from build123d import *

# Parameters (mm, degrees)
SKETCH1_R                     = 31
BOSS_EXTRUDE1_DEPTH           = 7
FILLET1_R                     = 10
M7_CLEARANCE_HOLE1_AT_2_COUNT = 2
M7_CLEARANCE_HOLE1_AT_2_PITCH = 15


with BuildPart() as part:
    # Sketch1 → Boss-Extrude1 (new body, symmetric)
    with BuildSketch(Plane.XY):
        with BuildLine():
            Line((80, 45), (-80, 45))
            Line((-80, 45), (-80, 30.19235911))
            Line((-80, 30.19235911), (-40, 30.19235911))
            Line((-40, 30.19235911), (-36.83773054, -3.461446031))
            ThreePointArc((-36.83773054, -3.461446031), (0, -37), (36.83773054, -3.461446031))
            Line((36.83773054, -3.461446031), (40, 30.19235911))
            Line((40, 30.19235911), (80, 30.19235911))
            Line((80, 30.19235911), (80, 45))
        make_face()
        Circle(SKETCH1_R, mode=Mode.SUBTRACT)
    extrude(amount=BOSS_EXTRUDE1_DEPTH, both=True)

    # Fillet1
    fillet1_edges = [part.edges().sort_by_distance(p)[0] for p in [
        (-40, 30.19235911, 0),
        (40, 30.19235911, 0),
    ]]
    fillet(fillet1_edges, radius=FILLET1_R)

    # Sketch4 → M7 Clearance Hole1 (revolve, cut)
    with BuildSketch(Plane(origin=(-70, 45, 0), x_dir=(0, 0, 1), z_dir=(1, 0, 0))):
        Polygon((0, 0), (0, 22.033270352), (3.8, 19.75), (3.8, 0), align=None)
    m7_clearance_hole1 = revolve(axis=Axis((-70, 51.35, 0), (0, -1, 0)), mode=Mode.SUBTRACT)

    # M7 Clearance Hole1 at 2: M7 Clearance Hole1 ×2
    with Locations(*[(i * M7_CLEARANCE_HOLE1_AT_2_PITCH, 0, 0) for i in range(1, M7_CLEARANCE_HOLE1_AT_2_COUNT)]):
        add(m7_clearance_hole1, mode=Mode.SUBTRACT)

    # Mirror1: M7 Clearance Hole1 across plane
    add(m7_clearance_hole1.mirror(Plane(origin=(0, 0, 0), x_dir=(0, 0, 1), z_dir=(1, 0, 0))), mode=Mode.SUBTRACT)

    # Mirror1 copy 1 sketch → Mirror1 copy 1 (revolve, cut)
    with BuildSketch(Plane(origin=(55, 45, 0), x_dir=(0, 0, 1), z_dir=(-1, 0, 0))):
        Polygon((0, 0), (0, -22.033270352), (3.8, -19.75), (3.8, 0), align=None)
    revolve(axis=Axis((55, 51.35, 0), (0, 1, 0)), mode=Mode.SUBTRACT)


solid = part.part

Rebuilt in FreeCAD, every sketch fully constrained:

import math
import FreeCAD as App
import Part
import Sketcher
from FreeCAD import Vector
Q = App.Units.Quantity


def edges_at(feature, points):
    """Names of the edges that pass closest to the given points."""
    edges = feature.Shape.Edges
    near = lambda p: min(range(len(edges)), key=lambda i: edges[i].distToShape(Part.Vertex(*p))[0])
    return sorted({f"Edge{near(p) + 1}" for p in points})


def add_polygon(sketch, points):
    """Adds a closed chain of lines whose ends are joined by coincident constraints."""
    first, n = sketch.GeometryCount, len(points)
    for a, b in zip(points, points[1:] + points[:1]):
        sketch.addGeometry(Part.LineSegment(App.Vector(*a, 0), App.Vector(*b, 0)), False)
    for i in range(n):
        sketch.addConstraint(Sketcher.Constraint("Coincident", first + i, 2, first + (i + 1) % n, 1))

doc = App.newDocument("Part")
params = doc.addObject("Spreadsheet::Sheet", "Params")
for row, (alias, value) in enumerate([
    ("sketch1_diameter", "62 mm"),
    ("sketch1_radius", "37 mm"),
    ("sketch1_width", "160 mm"),
    ("sketch1_width2", "40 mm"),
    ("pad1_length", "14 mm"),
    ("fillet_radius", "10 mm"),
    ("sketch2_height", "3.8 mm"),
    ("sketch2_width", "19.75 mm"),
    ("groove_angle", "360 deg"),
    ("linearpattern_pitch", "15 mm"),
    ("sketch3_height", "3.8 mm"),
    ("sketch3_width", "19.75 mm"),
    ("groove2_angle", "360 deg"),
], start=1):
    params.set(f"A{row}", alias)
    params.set(f"B{row}", "=" + value)
    params.setAlias(f"B{row}", alias)

body = doc.addObject("PartDesign::Body", "Body")

sketch1 = body.newObject("Sketcher::SketchObject", "Sketch")
sketch1.AttachmentSupport = (doc.getObject("XY_Plane"), [""])
sketch1.MapMode = "FlatFace"
sketch1.addGeometry(Part.LineSegment(Vector(80, 45, 0), Vector(-80, 45, 0)), False)
sketch1.addGeometry(Part.LineSegment(Vector(-80, 45, 0), Vector(-80, 30, 0)), False)
sketch1.addGeometry(Part.LineSegment(Vector(-80, 30, 0), Vector(-40, 30, 0)), False)
sketch1.addGeometry(Part.LineSegment(Vector(-40, 30, 0), Vector(-37, -3, 0)), False)
sketch1.addGeometry(Part.ArcOfCircle(Part.Circle(Vector(0, 0, 0), Vector(0, 0, 1), 37), math.radians(-175), math.radians(-5)), False)
sketch1.addGeometry(Part.LineSegment(Vector(37, -3, 0), Vector(40, 30, 0)), False)
sketch1.addGeometry(Part.LineSegment(Vector(40, 30, 0), Vector(80, 30, 0)), False)
sketch1.addGeometry(Part.LineSegment(Vector(80, 30, 0), Vector(80, 45, 0)), False)
sketch1.addGeometry(Part.Circle(Vector(0, 0, 0), Vector(0, 0, 1), 31), False)
sketch1.addConstraint(Sketcher.Constraint("Coincident", 0, 2, 1, 1))
sketch1.addConstraint(Sketcher.Constraint("Coincident", 1, 2, 2, 1))
sketch1.addConstraint(Sketcher.Constraint("Coincident", 2, 2, 3, 1))
sketch1.addConstraint(Sketcher.Constraint("Tangent", 3, 2, 4, 1))
sketch1.addConstraint(Sketcher.Constraint("Tangent", 4, 2, 5, 1))
sketch1.addConstraint(Sketcher.Constraint("Coincident", 5, 2, 6, 1))
sketch1.addConstraint(Sketcher.Constraint("Coincident", 6, 2, 7, 1))
sketch1.addConstraint(Sketcher.Constraint("Coincident", 7, 2, 0, 1))
sketch1.addConstraint(Sketcher.Constraint("Horizontal", 0))
sketch1.addConstraint(Sketcher.Constraint("Vertical", 1))
sketch1.addConstraint(Sketcher.Constraint("Horizontal", 2))
sketch1.addConstraint(Sketcher.Constraint("Horizontal", 6))
sketch1.addConstraint(Sketcher.Constraint("Vertical", 7))
sketch1.addConstraint(Sketcher.Constraint("Coincident", 4, 3, -1, 1))
sketch1.addConstraint(Sketcher.Constraint("Coincident", 8, 3, -1, 1))
sketch1.addConstraint(Sketcher.Constraint("Symmetric", 2, 2, 5, 2, -2))
sketch1.addConstraint(Sketcher.Constraint("Equal", 2, 6))
sketch1.addConstraint(Sketcher.Constraint("Diameter", 8, Q("62 mm")))
sketch1.addConstraint(Sketcher.Constraint("Radius", 4, Q("37 mm")))
sketch1.addConstraint(Sketcher.Constraint("DistanceX", 0, 2, 0, 1, Q("160 mm")))
sketch1.addConstraint(Sketcher.Constraint("DistanceX", 2, 1, 2, 2, Q("40 mm")))
sketch1.addConstraint(Sketcher.Constraint("DistanceY", -1, 1, 0, 2, Q("45 mm")))
sketch1.addConstraint(Sketcher.Constraint("DistanceY", 1, 2, 1, 1, Q("14.807641 mm")))
sketch1.setExpression("Constraints[17]", "Params.sketch1_diameter")
sketch1.setExpression("Constraints[18]", "Params.sketch1_radius")
sketch1.setExpression("Constraints[19]", "Params.sketch1_width")
sketch1.setExpression("Constraints[20]", "Params.sketch1_width2")
pad1 = body.newObject("PartDesign::Pad", "Pad")
pad1.Profile = sketch1
pad1.setExpression("Length", "Params.pad1_length")
pad1.Midplane = True
doc.recompute()

fillet = body.newObject("PartDesign::Fillet", "Fillet")
fillet.Base = (pad1, edges_at(pad1, [(-40, 30.192, 0), (40, 30.192, 0)]))
fillet.setExpression("Radius", "Params.fillet_radius")

sketch2 = body.newObject("Sketcher::SketchObject", "Sketch001")
sketch2.AttachmentSupport = (doc.getObject("YZ_Plane"), [""])
sketch2.MapMode = "FlatFace"
sketch2.AttachmentOffset = App.Placement(Vector(0, 0, -70), App.Rotation())
add_polygon(sketch2, [(23, 0), (45, 0), (45, 3.8), (25.2, 3.8)])
sketch2.addConstraint(Sketcher.Constraint("Horizontal", 0))
sketch2.addConstraint(Sketcher.Constraint("Vertical", 1))
sketch2.addConstraint(Sketcher.Constraint("Horizontal", 2))
sketch2.addConstraint(Sketcher.Constraint("PointOnObject", 0, 2, -1))
sketch2.addConstraint(Sketcher.Constraint("Angle", 3, Q("-121 deg")))
sketch2.addConstraint(Sketcher.Constraint("DistanceY", 1, 1, 1, 2, Q("3.8 mm")))
sketch2.addConstraint(Sketcher.Constraint("DistanceX", -1, 1, 0, 2, Q("45 mm")))
sketch2.addConstraint(Sketcher.Constraint("DistanceX", 2, 2, 2, 1, Q("19.75 mm")))
sketch2.setExpression("Constraints[9]", "Params.sketch2_height")
sketch2.setExpression("Constraints[11]", "Params.sketch2_width")
groove = body.newObject("PartDesign::Groove", "Groove")
groove.Profile = sketch2
groove.ReferenceAxis = (sketch2, ["H_Axis"])
groove.setExpression("Angle", "Params.groove_angle")
doc.recompute()

linearpattern = body.newObject("PartDesign::LinearPattern", "LinearPattern")
linearpattern.Originals = [groove]
linearpattern.Direction = (doc.getObject("X_Axis"), [""])
linearpattern.Mode = "offset"
linearpattern.setExpression("Offset", "Params.linearpattern_pitch")
linearpattern.Occurrences = 2
body.Tip = linearpattern
doc.recompute()

mirrored = body.newObject("PartDesign::Mirrored", "Mirrored")
mirrored.Originals = [groove]
mirrored.MirrorPlane = (doc.getObject("YZ_Plane"), [""])
body.Tip = mirrored

sketch3 = body.newObject("Sketcher::SketchObject", "Sketch002")
sketch3.AttachmentSupport = (doc.getObject("YZ_Plane"), [""])
sketch3.MapMode = "FlatFace"
sketch3.AttachmentOffset = App.Placement(Vector(0, 0, 55), App.Rotation())
add_polygon(sketch3, [(45, 0), (23, 0), (25.2, 3.8), (45, 3.8)])
sketch3.addConstraint(Sketcher.Constraint("Horizontal", 0))
sketch3.addConstraint(Sketcher.Constraint("Horizontal", 2))
sketch3.addConstraint(Sketcher.Constraint("Vertical", 3))
sketch3.addConstraint(Sketcher.Constraint("PointOnObject", 0, 2, -1))
sketch3.addConstraint(Sketcher.Constraint("Angle", 1, Q("59 deg")))
sketch3.addConstraint(Sketcher.Constraint("DistanceY", 3, 2, 3, 1, Q("3.8 mm")))
sketch3.addConstraint(Sketcher.Constraint("DistanceX", -1, 1, 2, 2, Q("45 mm")))
sketch3.addConstraint(Sketcher.Constraint("DistanceX", 2, 1, 2, 2, Q("19.75 mm")))
sketch3.setExpression("Constraints[9]", "Params.sketch3_height")
sketch3.setExpression("Constraints[11]", "Params.sketch3_width")
groove2 = body.newObject("PartDesign::Groove", "Groove001")
groove2.Profile = sketch3
groove2.ReferenceAxis = (sketch3, ["H_Axis"])
groove2.setExpression("Angle", "Params.groove2_angle")

doc.recompute()
